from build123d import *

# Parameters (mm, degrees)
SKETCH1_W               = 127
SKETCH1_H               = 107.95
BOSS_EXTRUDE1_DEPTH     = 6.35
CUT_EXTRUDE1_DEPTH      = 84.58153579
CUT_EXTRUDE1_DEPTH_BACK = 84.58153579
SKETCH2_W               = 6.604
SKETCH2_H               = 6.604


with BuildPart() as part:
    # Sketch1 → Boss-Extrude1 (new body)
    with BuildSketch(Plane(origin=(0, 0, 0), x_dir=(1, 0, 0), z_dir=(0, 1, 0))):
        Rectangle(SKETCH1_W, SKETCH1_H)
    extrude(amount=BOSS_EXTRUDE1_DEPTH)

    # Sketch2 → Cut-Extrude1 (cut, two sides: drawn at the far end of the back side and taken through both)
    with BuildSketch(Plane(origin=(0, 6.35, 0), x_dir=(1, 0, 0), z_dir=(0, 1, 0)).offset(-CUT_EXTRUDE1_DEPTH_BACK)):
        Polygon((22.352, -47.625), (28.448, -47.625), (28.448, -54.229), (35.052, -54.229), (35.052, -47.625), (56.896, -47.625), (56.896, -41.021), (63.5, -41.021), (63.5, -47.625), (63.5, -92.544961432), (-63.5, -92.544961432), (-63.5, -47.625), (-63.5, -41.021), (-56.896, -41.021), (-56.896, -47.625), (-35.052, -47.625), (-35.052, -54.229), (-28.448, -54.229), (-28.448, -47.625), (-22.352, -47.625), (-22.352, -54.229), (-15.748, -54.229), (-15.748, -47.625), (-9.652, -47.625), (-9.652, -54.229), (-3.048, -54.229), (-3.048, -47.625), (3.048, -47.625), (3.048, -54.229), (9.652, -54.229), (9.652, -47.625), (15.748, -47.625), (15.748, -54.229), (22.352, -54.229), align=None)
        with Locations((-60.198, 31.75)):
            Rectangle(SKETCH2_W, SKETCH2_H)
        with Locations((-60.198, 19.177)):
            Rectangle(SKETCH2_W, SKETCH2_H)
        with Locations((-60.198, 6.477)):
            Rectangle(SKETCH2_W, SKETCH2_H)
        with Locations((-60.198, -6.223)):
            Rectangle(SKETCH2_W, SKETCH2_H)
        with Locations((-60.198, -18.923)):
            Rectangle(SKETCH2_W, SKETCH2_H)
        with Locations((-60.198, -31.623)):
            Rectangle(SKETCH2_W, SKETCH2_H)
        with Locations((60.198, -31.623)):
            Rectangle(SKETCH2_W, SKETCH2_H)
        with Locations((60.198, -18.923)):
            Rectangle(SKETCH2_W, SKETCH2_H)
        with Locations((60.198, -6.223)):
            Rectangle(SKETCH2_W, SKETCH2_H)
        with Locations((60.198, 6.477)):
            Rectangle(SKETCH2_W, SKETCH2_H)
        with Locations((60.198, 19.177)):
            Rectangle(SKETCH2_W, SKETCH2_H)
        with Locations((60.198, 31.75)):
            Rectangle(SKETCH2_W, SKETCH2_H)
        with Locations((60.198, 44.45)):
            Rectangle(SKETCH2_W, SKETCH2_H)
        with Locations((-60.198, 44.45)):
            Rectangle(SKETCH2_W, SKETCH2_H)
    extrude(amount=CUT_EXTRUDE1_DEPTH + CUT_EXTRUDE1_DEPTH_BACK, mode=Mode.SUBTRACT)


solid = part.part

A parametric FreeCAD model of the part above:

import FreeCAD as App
import Part
import Sketcher
Q = App.Units.Quantity


def add_polygon(sketch, points):
    """Adds a closed chain of lines whose ends are joined by coincident constraints."""
    first, n = sketch.GeometryCount, len(points)
    for a, b in zip(points, points[1:] + points[:1]):
        sketch.addGeometry(Part.LineSegment(App.Vector(*a, 0), App.Vector(*b, 0)), False)
    for i in range(n):
        sketch.addConstraint(Sketcher.Constraint("Coincident", first + i, 2, first + (i + 1) % n, 1))

doc = App.newDocument("Part")
body = doc.addObject("PartDesign::Body", "Body")

# Sketch on XZ plane
sketch1 = body.newObject("Sketcher::SketchObject", "Sketch")
sketch1.AttachmentSupport = (doc.getObject("XZ_Plane"), [""])
sketch1.MapMode = "FlatFace"
add_polygon(sketch1, [(-63.5, -53.975), (-63.5, 53.975), (63.5, 53.975), (63.5, -53.975)])  # lines 0-3
sketch1.addConstraint(Sketcher.Constraint("Vertical", 0))
sketch1.addConstraint(Sketcher.Constraint("Horizontal", 1))
sketch1.addConstraint(Sketcher.Constraint("Vertical", 2))
sketch1.addConstraint(Sketcher.Constraint("Horizontal", 3))
sketch1.addConstraint(Sketcher.Constraint("Symmetric", 0, 2, 2, 2, -1, 1))
sketch1.addConstraint(Sketcher.Constraint("DistanceX", 1, 1, 1, 2, Q("5 in")))
sketch1.addConstraint(Sketcher.Constraint("DistanceY", 0, 1, 0, 2, Q("4.25 in")))
pad1 = body.newObject("PartDesign::Pad", "Pad")
pad1.Profile = sketch1
pad1.Length = Q("0.25 in")
pad1.Reversed = True

# Sketch on XZ plane
sketch2 = body.newObject("Sketcher::SketchObject", "Sketch001")
sketch2.AttachmentSupport = (doc.getObject("XZ_Plane"), [""])
sketch2.MapMode = "FlatFace"
sketch2.AttachmentOffset = App.Placement(App.Vector(0, 0, -0.25 * 25.4), App.Rotation())
add_polygon(sketch2, [(28.448, 47.625), (22.352, 47.625), (22.352, 54.229), (15.748, 54.229), (15.748, 47.625), (9.652, 47.625), (9.652, 54.229), (3.048, 54.229), (3.048, 47.625), (-3.048, 47.625), (-3.048, 54.229), (-9.652, 54.229), (-9.652, 47.625), (-15.748, 47.625), (-15.748, 54.229), (-22.352, 54.229), (-22.352, 47.625), (-28.448, 47.625), (-28.448, 54.229), (-35.052, 54.229), (-35.052, 47.625), (-56.896, 47.625), (-56.896, 41.021), (-63.5, 41.021), (-63.5, 92.544961), (63.5, 92.544961), (63.5, 41.021), (56.896, 41.021), (56.896, 47.625), (35.052, 47.625), (35.052, 54.229), (28.448, 54.229)])  # lines 0-31
add_polygon(sketch2, [(-63.5, -35.052), (-63.5, -28.448), (-56.896, -28.448), (-56.896, -35.052)])  # lines 32-35
add_polygon(sketch2, [(-63.5, -22.479), (-63.5, -15.875), (-56.896, -15.875), (-56.896, -22.479)])  # lines 36-39
add_polygon(sketch2, [(-63.5, -9.779), (-63.5, -3.175), (-56.896, -3.175), (-56.896, -9.779)])  # lines 40-43
add_polygon(sketch2, [(-63.5, 2.921), (-63.5, 9.525), (-56.896, 9.525), (-56.896, 2.921)])  # lines 44-47
add_polygon(sketch2, [(-63.5, 15.621), (-63.5, 22.225), (-56.896, 22.225), (-56.896, 15.621)])  # lines 48-51
add_polygon(sketch2, [(-63.5, 28.321), (-63.5, 34.925), (-56.896, 34.925), (-56.896, 28.321)])  # lines 52-55
add_polygon(sketch2, [(56.896, 28.321), (56.896, 34.925), (63.5, 34.925), (63.5, 28.321)])  # lines 56-59
add_polygon(sketch2, [(56.896, 15.621), (56.896, 22.225), (63.5, 22.225), (63.5, 15.621)])  # lines 60-63
add_polygon(sketch2, [(56.896, 2.921), (56.896, 9.525), (63.5, 9.525), (63.5, 2.921)])  # lines 64-67
add_polygon(sketch2, [(56.896, -9.779), (56.896, -3.175), (63.5, -3.175), (63.5, -9.779)])  # lines 68-71
add_polygon(sketch2, [(56.896, -22.479), (56.896, -15.875), (63.5, -15.875), (63.5, -22.479)])  # lines 72-75
add_polygon(sketch2, [(56.896, -35.052), (56.896, -28.448), (63.5, -28.448), (63.5, -35.052)])  # lines 76-79
add_polygon(sketch2, [(56.896, -47.752), (56.896, -41.148), (63.5, -41.148), (63.5, -47.752)])  # lines 80-83
add_polygon(sketch2, [(-63.5, -47.752), (-63.5, -41.148), (-56.896, -41.148), (-56.896, -47.752)])  # lines 84-87
sketch2.addConstraint(Sketcher.Constraint("Horizontal", 0))
sketch2.addConstraint(Sketcher.Constraint("Vertical", 1))
sketch2.addConstraint(Sketcher.Constraint("Horizontal", 2))
sketch2.addConstraint(Sketcher.Constraint("Vertical", 3))
sketch2.addConstraint(Sketcher.Constraint("Horizontal", 4))
sketch2.addConstraint(Sketcher.Constraint("Vertical", 5))
sketch2.addConstraint(Sketcher.Constraint("Horizontal", 6))
sketch2.addConstraint(Sketcher.Constraint("Vertical", 7))
sketch2.addConstraint(Sketcher.Constraint("Horizontal", 8))
sketch2.addConstraint(Sketcher.Constraint("Vertical", 9))
sketch2.addConstraint(Sketcher.Constraint("Horizontal", 10))
sketch2.addConstraint(Sketcher.Constraint("Vertical", 11))
sketch2.addConstraint(Sketcher.Constraint("Horizontal", 12))
sketch2.addConstraint(Sketcher.Constraint("Vertical", 13))
sketch2.addConstraint(Sketcher.Constraint("Horizontal", 14))
sketch2.addConstraint(Sketcher.Constraint("Vertical", 15))
sketch2.addConstraint(Sketcher.Constraint("Horizontal", 16))
sketch2.addConstraint(Sketcher.Constraint("Vertical", 17))
sketch2.addConstraint(Sketcher.Constraint("Horizontal", 18))
sketch2.addConstraint(Sketcher.Constraint("Vertical", 19))
sketch2.addConstraint(Sketcher.Constraint("Horizontal", 20))
sketch2.addConstraint(Sketcher.Constraint("Vertical", 21))
sketch2.addConstraint(Sketcher.Constraint("Horizontal", 22))
sketch2.addConstraint(Sketcher.Constraint("Vertical", 23))
sketch2.addConstraint(Sketcher.Constraint("Horizontal", 24))
sketch2.addConstraint(Sketcher.Constraint("Vertical", 25))
sketch2.addConstraint(Sketcher.Constraint("Horizontal", 26))
sketch2.addConstraint(Sketcher.Constraint("Vertical", 27))
sketch2.addConstraint(Sketcher.Constraint("Horizontal", 28))
sketch2.addConstraint(Sketcher.Constraint("Vertical", 29))
sketch2.addConstraint(Sketcher.Constraint("Horizontal", 30))
sketch2.addConstraint(Sketcher.Constraint("Vertical", 31))
sketch2.addConstraint(Sketcher.Constraint("Vertical", 32))
sketch2.addConstraint(Sketcher.Constraint("Horizontal", 33))
sketch2.addConstraint(Sketcher.Constraint("Vertical", 34))
sketch2.addConstraint(Sketcher.Constraint("Horizontal", 35))
sketch2.addConstraint(Sketcher.Constraint("Vertical", 36))
sketch2.addConstraint(Sketcher.Constraint("Horizontal", 37))
sketch2.addConstraint(Sketcher.Constraint("Vertical", 38))
sketch2.addConstraint(Sketcher.Constraint("Horizontal", 39))
sketch2.addConstraint(Sketcher.Constraint("Vertical", 40))
sketch2.addConstraint(Sketcher.Constraint("Horizontal", 41))
sketch2.addConstraint(Sketcher.Constraint("Vertical", 42))
sketch2.addConstraint(Sketcher.Constraint("Horizontal", 43))
sketch2.addConstraint(Sketcher.Constraint("Vertical", 44))
sketch2.addConstraint(Sketcher.Constraint("Horizontal", 45))
sketch2.addConstraint(Sketcher.Constraint("Vertical", 46))
sketch2.addConstraint(Sketcher.Constraint("Horizontal", 47))
sketch2.addConstraint(Sketcher.Constraint("Vertical", 48))
sketch2.addConstraint(Sketcher.Constraint("Horizontal", 49))
sketch2.addConstraint(Sketcher.Constraint("Vertical", 50))
sketch2.addConstraint(Sketcher.Constraint("Horizontal", 51))
sketch2.addConstraint(Sketcher.Constraint("Vertical", 52))
sketch2.addConstraint(Sketcher.Constraint("Horizontal", 53))
sketch2.addConstraint(Sketcher.Constraint("Vertical", 54))
sketch2.addConstraint(Sketcher.Constraint("Horizontal", 55))
sketch2.addConstraint(Sketcher.Constraint("Vertical", 56))
sketch2.addConstraint(Sketcher.Constraint("Horizontal", 57))
sketch2.addConstraint(Sketcher.Constraint("Vertical", 58))
sketch2.addConstraint(Sketcher.Constraint("Horizontal", 59))
sketch2.addConstraint(Sketcher.Constraint("Vertical", 60))
sketch2.addConstraint(Sketcher.Constraint("Horizontal", 61))
sketch2.addConstraint(Sketcher.Constraint("Vertical", 62))
sketch2.addConstraint(Sketcher.Constraint("Horizontal", 63))
sketch2.addConstraint(Sketcher.Constraint("Vertical", 64))
sketch2.addConstraint(Sketcher.Constraint("Horizontal", 65))
sketch2.addConstraint(Sketcher.Constraint("Vertical", 66))
sketch2.addConstraint(Sketcher.Constraint("Horizontal", 67))
sketch2.addConstraint(Sketcher.Constraint("Vertical", 68))
sketch2.addConstraint(Sketcher.Constraint("Horizontal", 69))
sketch2.addConstraint(Sketcher.Constraint("Vertical", 70))
sketch2.addConstraint(Sketcher.Constraint("Horizontal", 71))
sketch2.addConstraint(Sketcher.Constraint("Vertical", 72))
sketch2.addConstraint(Sketcher.Constraint("Horizontal", 73))
sketch2.addConstraint(Sketcher.Constraint("Vertical", 74))
sketch2.addConstraint(Sketcher.Constraint("Horizontal", 75))
sketch2.addConstraint(Sketcher.Constraint("Vertical", 76))
sketch2.addConstraint(Sketcher.Constraint("Horizontal", 77))
sketch2.addConstraint(Sketcher.Constraint("Vertical", 78))
sketch2.addConstraint(Sketcher.Constraint("Horizontal", 79))
sketch2.addConstraint(Sketcher.Constraint("Vertical", 80))
sketch2.addConstraint(Sketcher.Constraint("Horizontal", 81))
sketch2.addConstraint(Sketcher.Constraint("Vertical", 82))
sketch2.addConstraint(Sketcher.Constraint("Horizontal", 83))
sketch2.addConstraint(Sketcher.Constraint("Vertical", 84))
sketch2.addConstraint(Sketcher.Constraint("Horizontal", 85))
sketch2.addConstraint(Sketcher.Constraint("Vertical", 86))
sketch2.addConstraint(Sketcher.Constraint("Horizontal", 87))
sketch2.addConstraint(Sketcher.Constraint("Symmetric", 6, 2, 9, 2, -2))
sketch2.addConstraint(Sketcher.Constraint("Symmetric", 4, 2, 11, 2, -2))
sketch2.addConstraint(Sketcher.Constraint("Symmetric", 2, 2, 13, 2, -2))
sketch2.addConstraint(Sketcher.Constraint("Symmetric", 0, 2, 15, 2, -2))
sketch2.addConstraint(Sketcher.Constraint("Symmetric", 22, 2, 25, 2, -2))
sketch2.addConstraint(Sketcher.Constraint("Symmetric", 20, 2, 27, 2, -2))
sketch2.addConstraint(Sketcher.Constraint("Symmetric", 18, 2, 29, 2, -2))
sketch2.addConstraint(Sketcher.Constraint("Symmetric", 53, 2, 56, 2, -2))
sketch2.addConstraint(Sketcher.Constraint("Symmetric", 55, 2, 58, 2, -2))
sketch2.addConstraint(Sketcher.Constraint("Symmetric", 49, 2, 60, 2, -2))
sketch2.addConstraint(Sketcher.Constraint("Symmetric", 51, 2, 62, 2, -2))
sketch2.addConstraint(Sketcher.Constraint("Symmetric", 45, 2, 64, 2, -2))
sketch2.addConstraint(Sketcher.Constraint("Symmetric", 47, 2, 66, 2, -2))
sketch2.addConstraint(Sketcher.Constraint("Symmetric", 41, 2, 68, 2, -2))
sketch2.addConstraint(Sketcher.Constraint("Symmetric", 43, 2, 70, 2, -2))
sketch2.addConstraint(Sketcher.Constraint("Symmetric", 37, 2, 72, 2, -2))
sketch2.addConstraint(Sketcher.Constraint("Symmetric", 39, 2, 74, 2, -2))
sketch2.addConstraint(Sketcher.Constraint("Symmetric", 33, 2, 76, 2, -2))
sketch2.addConstraint(Sketcher.Constraint("Symmetric", 35, 2, 78, 2, -2))
sketch2.addConstraint(Sketcher.Constraint("Symmetric", 81, 2, 84, 2, -2))
sketch2.addConstraint(Sketcher.Constraint("Symmetric", 83, 2, 86, 2, -2))
sketch2.addConstraint(Sketcher.Constraint("Horizontal", 0, 2, 3, 2))
sketch2.addConstraint(Sketcher.Constraint("Horizontal", 2, 2, 5, 2))
sketch2.addConstraint(Sketcher.Constraint("Horizontal", 4, 2, 7, 2))
sketch2.addConstraint(Sketcher.Constraint("Horizontal", 14, 2, 17, 2))
sketch2.addConstraint(Sketcher.Constraint("Horizontal", 16, 2, 19, 2))
sketch2.addConstraint(Sketcher.Constraint("Vertical", 23, 2, 32, 2))
sketch2.addConstraint(Sketcher.Constraint("Vertical", 21, 2, 33, 2))
sketch2.addConstraint(Sketcher.Constraint("Vertical", 35, 2, 36, 2))
sketch2.addConstraint(Sketcher.Constraint("Vertical", 34, 2, 37, 2))
sketch2.addConstraint(Sketcher.Constraint("Vertical", 39, 2, 40, 2))
sketch2.addConstraint(Sketcher.Constraint("Vertical", 38, 2, 41, 2))
sketch2.addConstraint(Sketcher.Constraint("Vertical", 43, 2, 44, 2))
sketch2.addConstraint(Sketcher.Constraint("Vertical", 42, 2, 45, 2))
sketch2.addConstraint(Sketcher.Constraint("Vertical", 47, 2, 48, 2))
sketch2.addConstraint(Sketcher.Constraint("Vertical", 46, 2, 49, 2))
sketch2.addConstraint(Sketcher.Constraint("Vertical", 51, 2, 52, 2))
sketch2.addConstraint(Sketcher.Constraint("Vertical", 50, 2, 53, 2))
sketch2.addConstraint(Sketcher.Constraint("Vertical", 79, 2, 80, 2))
sketch2.addConstraint(Sketcher.Constraint("Vertical", 78, 2, 81, 2))
sketch2.addConstraint(Sketcher.Constraint("Equal", 0, 4))
sketch2.addConstraint(Sketcher.Constraint("Equal", 2, 6))
sketch2.addConstraint(Sketcher.Constraint("Equal", 4, 8))
sketch2.addConstraint(Sketcher.Constraint("Equal", 12, 16))
sketch2.addConstraint(Sketcher.Constraint("Equal", 14, 18))
sketch2.addConstraint(Sketcher.Constraint("Equal", 18, 22))
sketch2.addConstraint(Sketcher.Constraint("Equal", 87, 1))
sketch2.addConstraint(Sketcher.Constraint("Equal", 19, 21))
sketch2.addConstraint(Sketcher.Constraint("Equal", 31, 32))
sketch2.addConstraint(Sketcher.Constraint("Equal", 34, 36))
sketch2.addConstraint(Sketcher.Constraint("Equal", 38, 40))
sketch2.addConstraint(Sketcher.Constraint("Equal", 42, 44))
sketch2.addConstraint(Sketcher.Constraint("Equal", 46, 48))
sketch2.addConstraint(Sketcher.Constraint("Equal", 50, 52))
sketch2.addConstraint(Sketcher.Constraint("Equal", 78, 80))
sketch2.addConstraint(Sketcher.Constraint("DistanceX", 24, 1, 24, 2, Q("5 in")))
sketch2.addConstraint(Sketcher.Constraint("DistanceX", 0, 2, 0, 1, Q("0.24 in")))
sketch2.addConstraint(Sketcher.Constraint("DistanceX", 2, 2, 2, 1, Q("0.26 in")))
sketch2.addConstraint(Sketcher.Constraint("DistanceY", 32, 2, -1, 1, Q("1.12 in")))
sketch2.addConstraint(Sketcher.Constraint("DistanceY", 80, 2, -1, 1, Q("1.62 in")))
sketch2.addConstraint(Sketcher.Constraint("DistanceY", -1, 1, 0, 2, Q("1.875 in")))
sketch2.addConstraint(Sketcher.Constraint("DistanceY", 36, 2, -1, 1, Q("0.625 in")))
sketch2.addConstraint(Sketcher.Constraint("DistanceY", 40, 2, -1, 1, Q("0.125 in")))
sketch2.addConstraint(Sketcher.Constraint("DistanceY", -1, 1, 44, 2, Q("0.375 in")))
sketch2.addConstraint(Sketcher.Constraint("DistanceY", -1, 1, 48, 2, Q("0.875 in")))
sketch2.addConstraint(Sketcher.Constraint("DistanceY", -1, 1, 52, 2, Q("1.375 in")))
sketch2.addConstraint(Sketcher.Constraint("DistanceY", 23, 1, 23, 2, 51.523961))
pocket1 = body.newObject("PartDesign::Pocket", "Pocket")
pocket1.Profile = sketch2
pocket1.Type = "ThroughAll"
pocket1.Midplane = True

doc.recompute()
